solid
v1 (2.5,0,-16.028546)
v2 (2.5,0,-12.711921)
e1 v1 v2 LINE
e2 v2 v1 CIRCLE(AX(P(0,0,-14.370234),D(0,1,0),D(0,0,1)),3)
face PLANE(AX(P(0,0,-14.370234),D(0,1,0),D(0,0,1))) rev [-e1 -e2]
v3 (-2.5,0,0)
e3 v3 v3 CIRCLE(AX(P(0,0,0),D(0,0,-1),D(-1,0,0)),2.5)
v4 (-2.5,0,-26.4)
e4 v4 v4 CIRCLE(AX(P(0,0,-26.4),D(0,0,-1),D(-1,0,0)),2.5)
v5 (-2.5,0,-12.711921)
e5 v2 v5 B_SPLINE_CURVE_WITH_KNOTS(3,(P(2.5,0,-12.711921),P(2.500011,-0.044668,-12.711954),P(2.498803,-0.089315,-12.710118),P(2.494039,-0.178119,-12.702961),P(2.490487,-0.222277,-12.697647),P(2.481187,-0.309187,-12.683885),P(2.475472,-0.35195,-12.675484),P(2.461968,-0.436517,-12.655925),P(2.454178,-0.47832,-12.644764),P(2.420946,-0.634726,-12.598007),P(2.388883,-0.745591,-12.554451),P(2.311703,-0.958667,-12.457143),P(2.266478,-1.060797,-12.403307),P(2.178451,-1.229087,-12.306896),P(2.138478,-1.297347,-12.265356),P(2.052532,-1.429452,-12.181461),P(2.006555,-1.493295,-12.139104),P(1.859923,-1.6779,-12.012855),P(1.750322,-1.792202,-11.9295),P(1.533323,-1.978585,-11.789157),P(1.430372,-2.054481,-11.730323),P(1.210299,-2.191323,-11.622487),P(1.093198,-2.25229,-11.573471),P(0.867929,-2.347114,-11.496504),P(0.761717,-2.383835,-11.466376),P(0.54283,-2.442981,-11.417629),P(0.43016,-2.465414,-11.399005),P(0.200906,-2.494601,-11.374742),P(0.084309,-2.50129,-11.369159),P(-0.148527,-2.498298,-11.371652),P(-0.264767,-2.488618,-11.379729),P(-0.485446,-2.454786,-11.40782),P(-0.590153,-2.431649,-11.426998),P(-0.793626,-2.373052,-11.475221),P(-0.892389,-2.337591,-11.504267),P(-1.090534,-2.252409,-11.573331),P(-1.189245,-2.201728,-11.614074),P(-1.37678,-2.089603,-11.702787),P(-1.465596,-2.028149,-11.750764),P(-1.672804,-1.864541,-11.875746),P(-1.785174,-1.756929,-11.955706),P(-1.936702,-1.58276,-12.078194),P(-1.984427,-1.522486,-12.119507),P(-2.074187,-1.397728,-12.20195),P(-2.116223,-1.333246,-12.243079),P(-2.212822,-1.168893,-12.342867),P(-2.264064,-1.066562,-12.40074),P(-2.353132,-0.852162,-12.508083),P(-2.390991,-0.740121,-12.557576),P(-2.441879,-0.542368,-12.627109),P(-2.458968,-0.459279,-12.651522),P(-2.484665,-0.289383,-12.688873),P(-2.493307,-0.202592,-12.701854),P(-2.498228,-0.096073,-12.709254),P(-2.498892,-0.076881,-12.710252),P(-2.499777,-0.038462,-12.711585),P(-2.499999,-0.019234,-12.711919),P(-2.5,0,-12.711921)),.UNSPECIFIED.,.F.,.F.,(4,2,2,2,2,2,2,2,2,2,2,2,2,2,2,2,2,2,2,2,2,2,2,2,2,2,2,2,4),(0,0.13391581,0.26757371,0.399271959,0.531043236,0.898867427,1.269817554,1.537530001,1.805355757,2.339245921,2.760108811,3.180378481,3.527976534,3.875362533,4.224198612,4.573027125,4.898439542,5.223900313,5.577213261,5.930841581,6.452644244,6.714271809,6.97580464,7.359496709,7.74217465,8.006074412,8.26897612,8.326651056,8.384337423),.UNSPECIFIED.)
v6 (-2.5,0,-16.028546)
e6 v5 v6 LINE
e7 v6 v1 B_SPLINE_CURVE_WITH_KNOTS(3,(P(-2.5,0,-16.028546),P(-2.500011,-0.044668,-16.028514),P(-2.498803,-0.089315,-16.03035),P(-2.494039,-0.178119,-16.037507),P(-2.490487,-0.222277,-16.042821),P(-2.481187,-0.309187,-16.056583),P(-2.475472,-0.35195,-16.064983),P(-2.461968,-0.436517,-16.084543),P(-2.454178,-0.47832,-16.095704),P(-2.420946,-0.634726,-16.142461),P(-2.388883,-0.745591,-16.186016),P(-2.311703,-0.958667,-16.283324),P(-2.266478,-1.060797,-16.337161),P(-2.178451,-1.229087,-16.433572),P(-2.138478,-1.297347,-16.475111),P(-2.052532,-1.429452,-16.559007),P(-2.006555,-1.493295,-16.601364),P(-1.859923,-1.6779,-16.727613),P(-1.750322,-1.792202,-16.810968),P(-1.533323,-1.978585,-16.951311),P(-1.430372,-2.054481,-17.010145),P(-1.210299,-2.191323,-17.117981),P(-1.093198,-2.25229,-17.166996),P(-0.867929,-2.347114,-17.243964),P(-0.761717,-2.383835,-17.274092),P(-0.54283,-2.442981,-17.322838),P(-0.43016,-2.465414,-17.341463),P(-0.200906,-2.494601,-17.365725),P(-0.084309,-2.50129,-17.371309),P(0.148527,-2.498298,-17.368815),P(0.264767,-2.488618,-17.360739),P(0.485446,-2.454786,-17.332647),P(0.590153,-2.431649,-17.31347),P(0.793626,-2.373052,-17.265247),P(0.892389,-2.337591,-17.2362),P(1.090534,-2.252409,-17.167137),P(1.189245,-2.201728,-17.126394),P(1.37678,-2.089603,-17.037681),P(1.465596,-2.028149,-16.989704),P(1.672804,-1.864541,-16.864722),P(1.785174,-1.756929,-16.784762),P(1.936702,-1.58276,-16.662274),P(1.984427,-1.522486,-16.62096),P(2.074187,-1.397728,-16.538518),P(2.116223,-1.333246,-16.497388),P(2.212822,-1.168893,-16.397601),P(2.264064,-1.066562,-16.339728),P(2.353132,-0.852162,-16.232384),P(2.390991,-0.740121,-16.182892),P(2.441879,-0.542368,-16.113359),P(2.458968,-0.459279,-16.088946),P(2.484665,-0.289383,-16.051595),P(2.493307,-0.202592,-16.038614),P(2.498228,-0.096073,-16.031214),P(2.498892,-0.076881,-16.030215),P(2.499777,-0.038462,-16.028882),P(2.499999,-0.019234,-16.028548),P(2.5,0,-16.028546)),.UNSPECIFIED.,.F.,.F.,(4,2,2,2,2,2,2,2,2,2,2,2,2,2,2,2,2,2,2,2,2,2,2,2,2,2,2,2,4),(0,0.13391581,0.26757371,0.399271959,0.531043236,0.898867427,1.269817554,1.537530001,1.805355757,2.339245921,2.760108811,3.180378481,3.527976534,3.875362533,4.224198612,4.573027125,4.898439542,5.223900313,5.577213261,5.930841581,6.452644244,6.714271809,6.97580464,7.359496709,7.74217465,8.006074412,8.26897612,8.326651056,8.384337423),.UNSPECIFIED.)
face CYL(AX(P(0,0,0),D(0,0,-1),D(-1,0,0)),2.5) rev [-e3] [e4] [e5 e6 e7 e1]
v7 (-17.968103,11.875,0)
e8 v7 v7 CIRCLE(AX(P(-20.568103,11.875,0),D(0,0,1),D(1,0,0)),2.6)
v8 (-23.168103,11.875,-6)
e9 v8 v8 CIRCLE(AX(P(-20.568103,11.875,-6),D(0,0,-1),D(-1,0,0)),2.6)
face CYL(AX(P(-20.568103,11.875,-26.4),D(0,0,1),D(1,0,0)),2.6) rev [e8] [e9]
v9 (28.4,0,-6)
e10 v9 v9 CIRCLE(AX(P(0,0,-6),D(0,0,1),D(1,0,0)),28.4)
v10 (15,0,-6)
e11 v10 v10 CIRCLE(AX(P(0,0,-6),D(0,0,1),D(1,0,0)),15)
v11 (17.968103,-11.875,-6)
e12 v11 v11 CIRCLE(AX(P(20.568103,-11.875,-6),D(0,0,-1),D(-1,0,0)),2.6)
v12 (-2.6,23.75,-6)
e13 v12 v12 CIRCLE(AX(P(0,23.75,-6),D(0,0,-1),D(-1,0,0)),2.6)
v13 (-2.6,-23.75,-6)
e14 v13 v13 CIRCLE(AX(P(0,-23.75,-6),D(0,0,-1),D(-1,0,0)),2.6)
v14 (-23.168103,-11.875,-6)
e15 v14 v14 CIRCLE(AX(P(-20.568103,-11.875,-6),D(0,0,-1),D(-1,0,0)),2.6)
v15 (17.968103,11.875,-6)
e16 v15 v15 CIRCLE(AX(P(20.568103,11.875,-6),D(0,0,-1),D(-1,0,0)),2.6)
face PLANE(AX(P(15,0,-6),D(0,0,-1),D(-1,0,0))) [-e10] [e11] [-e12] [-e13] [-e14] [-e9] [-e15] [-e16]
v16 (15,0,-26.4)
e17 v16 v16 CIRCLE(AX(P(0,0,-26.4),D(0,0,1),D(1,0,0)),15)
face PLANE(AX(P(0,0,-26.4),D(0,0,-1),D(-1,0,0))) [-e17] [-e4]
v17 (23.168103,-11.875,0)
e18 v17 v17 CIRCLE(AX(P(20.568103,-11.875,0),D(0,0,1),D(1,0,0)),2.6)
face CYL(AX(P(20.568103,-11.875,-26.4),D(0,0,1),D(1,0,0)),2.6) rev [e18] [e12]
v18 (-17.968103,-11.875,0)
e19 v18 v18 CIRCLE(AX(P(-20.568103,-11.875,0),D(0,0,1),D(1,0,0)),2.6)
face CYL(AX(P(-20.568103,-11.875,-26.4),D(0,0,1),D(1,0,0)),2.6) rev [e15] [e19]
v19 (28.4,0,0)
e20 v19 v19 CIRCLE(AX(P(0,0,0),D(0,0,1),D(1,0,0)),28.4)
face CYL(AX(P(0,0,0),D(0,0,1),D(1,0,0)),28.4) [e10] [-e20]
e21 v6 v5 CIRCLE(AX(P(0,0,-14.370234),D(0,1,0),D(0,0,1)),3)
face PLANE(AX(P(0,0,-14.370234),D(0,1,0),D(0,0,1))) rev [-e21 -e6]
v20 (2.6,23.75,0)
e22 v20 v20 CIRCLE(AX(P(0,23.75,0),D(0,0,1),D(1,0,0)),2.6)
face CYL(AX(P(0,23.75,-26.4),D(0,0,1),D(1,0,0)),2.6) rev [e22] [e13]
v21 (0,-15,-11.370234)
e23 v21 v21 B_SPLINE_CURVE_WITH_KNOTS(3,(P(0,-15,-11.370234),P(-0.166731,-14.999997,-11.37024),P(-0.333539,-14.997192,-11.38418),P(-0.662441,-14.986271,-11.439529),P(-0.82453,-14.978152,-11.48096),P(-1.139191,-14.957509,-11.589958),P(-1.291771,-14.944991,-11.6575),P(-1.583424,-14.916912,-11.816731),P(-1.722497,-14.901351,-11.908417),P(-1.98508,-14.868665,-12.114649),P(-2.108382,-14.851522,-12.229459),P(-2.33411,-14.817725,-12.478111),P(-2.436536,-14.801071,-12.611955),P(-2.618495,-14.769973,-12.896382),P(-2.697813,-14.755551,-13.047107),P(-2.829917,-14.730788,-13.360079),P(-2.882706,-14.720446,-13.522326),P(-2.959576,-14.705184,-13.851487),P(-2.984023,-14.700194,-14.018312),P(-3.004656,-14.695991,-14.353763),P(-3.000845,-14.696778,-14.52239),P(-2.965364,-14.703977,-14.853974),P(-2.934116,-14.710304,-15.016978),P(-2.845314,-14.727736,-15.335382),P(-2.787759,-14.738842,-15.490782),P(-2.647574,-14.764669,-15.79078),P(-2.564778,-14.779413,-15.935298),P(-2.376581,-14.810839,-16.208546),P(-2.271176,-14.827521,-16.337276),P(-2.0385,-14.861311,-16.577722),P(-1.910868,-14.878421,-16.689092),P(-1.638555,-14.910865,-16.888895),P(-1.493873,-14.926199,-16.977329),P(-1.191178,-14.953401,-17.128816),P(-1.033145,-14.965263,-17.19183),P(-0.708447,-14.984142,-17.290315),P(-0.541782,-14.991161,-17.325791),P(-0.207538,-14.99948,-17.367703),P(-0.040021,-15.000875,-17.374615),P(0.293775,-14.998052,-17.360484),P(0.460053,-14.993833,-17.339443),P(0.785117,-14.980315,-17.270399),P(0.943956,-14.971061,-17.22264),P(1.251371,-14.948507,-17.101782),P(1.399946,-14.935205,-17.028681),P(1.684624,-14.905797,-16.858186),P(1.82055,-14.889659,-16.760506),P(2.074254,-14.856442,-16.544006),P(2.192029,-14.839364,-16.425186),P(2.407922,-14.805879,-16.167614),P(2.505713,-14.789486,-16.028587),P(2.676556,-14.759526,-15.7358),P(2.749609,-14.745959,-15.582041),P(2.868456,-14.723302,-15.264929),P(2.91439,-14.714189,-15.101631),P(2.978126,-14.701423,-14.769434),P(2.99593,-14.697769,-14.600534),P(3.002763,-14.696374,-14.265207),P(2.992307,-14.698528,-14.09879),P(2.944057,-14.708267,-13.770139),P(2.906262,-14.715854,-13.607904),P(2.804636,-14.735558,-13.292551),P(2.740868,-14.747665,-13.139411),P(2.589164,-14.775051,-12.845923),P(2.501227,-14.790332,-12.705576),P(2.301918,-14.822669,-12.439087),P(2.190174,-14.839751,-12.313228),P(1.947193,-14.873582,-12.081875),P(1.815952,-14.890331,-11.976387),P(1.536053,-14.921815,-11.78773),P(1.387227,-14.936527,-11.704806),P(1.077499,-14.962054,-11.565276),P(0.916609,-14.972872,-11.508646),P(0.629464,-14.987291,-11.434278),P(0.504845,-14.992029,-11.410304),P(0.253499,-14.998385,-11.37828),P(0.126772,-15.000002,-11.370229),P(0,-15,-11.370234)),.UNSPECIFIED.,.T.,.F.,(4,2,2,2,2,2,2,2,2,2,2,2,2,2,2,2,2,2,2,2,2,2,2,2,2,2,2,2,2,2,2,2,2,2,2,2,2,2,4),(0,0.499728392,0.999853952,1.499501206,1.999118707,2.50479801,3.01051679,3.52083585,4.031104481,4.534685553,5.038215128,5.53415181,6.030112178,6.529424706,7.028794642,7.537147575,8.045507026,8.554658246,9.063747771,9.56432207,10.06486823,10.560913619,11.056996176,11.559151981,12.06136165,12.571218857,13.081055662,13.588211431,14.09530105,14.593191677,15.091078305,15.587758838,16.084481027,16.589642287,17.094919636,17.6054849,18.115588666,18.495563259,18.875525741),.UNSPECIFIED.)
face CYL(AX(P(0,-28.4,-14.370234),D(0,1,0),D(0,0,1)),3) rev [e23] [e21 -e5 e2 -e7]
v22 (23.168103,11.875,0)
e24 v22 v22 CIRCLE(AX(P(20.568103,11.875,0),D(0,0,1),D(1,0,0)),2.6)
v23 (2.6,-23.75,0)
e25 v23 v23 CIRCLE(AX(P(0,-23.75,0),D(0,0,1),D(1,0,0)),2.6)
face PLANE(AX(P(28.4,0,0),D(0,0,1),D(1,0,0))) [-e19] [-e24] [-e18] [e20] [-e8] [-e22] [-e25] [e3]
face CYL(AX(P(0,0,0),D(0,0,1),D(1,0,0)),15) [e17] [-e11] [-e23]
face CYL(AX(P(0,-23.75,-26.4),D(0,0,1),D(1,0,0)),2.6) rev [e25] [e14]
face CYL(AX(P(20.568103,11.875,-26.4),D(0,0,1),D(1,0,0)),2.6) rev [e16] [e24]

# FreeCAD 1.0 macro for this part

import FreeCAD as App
import Part
import Sketcher

V = App.Vector
Q = App.Units.Quantity


def add_polygon(sketch, points):
    """Adds a closed chain of lines whose ends are joined by coincident constraints."""
    first, n = sketch.GeometryCount, len(points)
    for a, b in zip(points, points[1:] + points[:1]):
        sketch.addGeometry(Part.LineSegment(App.Vector(*a, 0), App.Vector(*b, 0)), False)
    for i in range(n):
        sketch.addConstraint(Sketcher.Constraint("Coincident", first + i, 2, first + (i + 1) % n, 1))

doc = App.newDocument("Part")
body = doc.addObject("PartDesign::Body", "Body")

sketch1 = body.newObject("Sketcher::SketchObject", "Sketch")
sketch1.AttachmentSupport = (doc.getObject("XZ_Plane"), [""])
sketch1.MapMode = "FlatFace"
add_polygon(sketch1, [(0, -26), (0, 0), (28, 0), (28, -6), (15, -6), (15, -26)])
sketch1.addConstraint([
    Sketcher.Constraint("Vertical", 0),
    Sketcher.Constraint("Horizontal", 1),
    Sketcher.Constraint("Vertical", 2),
    Sketcher.Constraint("Horizontal", 3),
    Sketcher.Constraint("Vertical", 4),
    Sketcher.Constraint("Horizontal", 5),
    Sketcher.Constraint("Coincident", 0, 2, -1, 1),
    Sketcher.Constraint("DistanceX", 5, 2, 5, 1, Q("15 mm")),
    Sketcher.Constraint("DistanceY", 2, 2, 2, 1, Q("6 mm")),
    Sketcher.Constraint("DistanceX", 1, 1, 1, 2, Q("28.4 mm")),
    Sketcher.Constraint("DistanceY", 0, 1, 0, 2, Q("26.4 mm")),
])
revolution = body.newObject("PartDesign::Revolution", "Revolution")
revolution.Profile = sketch1
revolution.ReferenceAxis = (sketch1, ["V_Axis"])
revolution.Angle = 360

sketch2 = body.newObject("Sketcher::SketchObject", "Sketch001")
sketch2.AttachmentSupport = (doc.getObject("XY_Plane"), [""])
sketch2.MapMode = "FlatFace"
sketch2.AttachmentOffset = App.Placement(V(0, 0, -26.4), App.Rotation())
sketch2.addGeometry(Part.Circle(V(0, 0, 0), V(0, 0, 1), 2.5), False)
sketch2.addConstraint([
    Sketcher.Constraint("Coincident", 0, 3, -1, 1),
    Sketcher.Constraint("Diameter", 0, Q("5 mm")),
])
pocket1 = body.newObject("PartDesign::Pocket", "Pocket")
pocket1.Profile = sketch2
pocket1.Type = "ThroughAll"
pocket1.Reversed = True

sketch3 = body.newObject("Sketcher::SketchObject", "Sketch002")
sketch3.AttachmentSupport = (doc.getObject("XZ_Plane"), [""])
sketch3.MapMode = "FlatFace"
sketch3.addGeometry(Part.Circle(V(0, -14.4, 0), V(0, 0, 1), 3), False)
sketch3.addConstraint([
    Sketcher.Constraint("PointOnObject", 0, 3, -2),
    Sketcher.Constraint("Diameter", 0, Q("6 mm")),
    Sketcher.Constraint("DistanceY", 0, 3, -1, 1, Q("14.370234 mm")),
])
pocket2 = body.newObject("PartDesign::Pocket", "Pocket001")
pocket2.Profile = sketch3
pocket2.Type = "ThroughAll"
pocket2.Reversed = True

sketch4 = body.newObject("Sketcher::SketchObject", "Sketch003")
sketch4.AttachmentSupport = (doc.getObject("XY_Plane"), [""])
sketch4.MapMode = "FlatFace"
sketch4.addGeometry([
    Part.Circle(V(0, 23.8, 0), V(0, 0, 1), 2.6),
    Part.Circle(V(20.6, 11.9, 0), V(0, 0, 1), 2.6),
    Part.Circle(V(20.6, -11.9, 0), V(0, 0, 1), 2.6),
    Part.Circle(V(0, -23.8, 0), V(0, 0, 1), 2.6),
    Part.Circle(V(-20.6, -11.9, 0), V(0, 0, 1), 2.6),
    Part.Circle(V(-20.6, 11.9, 0), V(0, 0, 1), 2.6),
], False)
sketch4.addConstraint([
    Sketcher.Constraint("Equal", 0, 1),
    Sketcher.Constraint("Equal", 1, 2),
    Sketcher.Constraint("Equal", 2, 3),
    Sketcher.Constraint("Equal", 3, 4),
    Sketcher.Constraint("Equal", 4, 5),
    Sketcher.Constraint("Symmetric", 0, 3, 3, 3, -1, 1),
    Sketcher.Constraint("Symmetric", 1, 3, 4, 3, -1, 1),
    Sketcher.Constraint("Symmetric", 2, 3, 5, 3, -1, 1),
    Sketcher.Constraint("Symmetric", 2, 3, 4, 3, -2),
    Sketcher.Constraint("PointOnObject", 0, 3, -2),
    Sketcher.Constraint("Diameter", 0, Q("5.2 mm")),
    Sketcher.Constraint("DistanceY", 3, 3, 0, 3, Q("47.5 mm")),
    Sketcher.Constraint("DistanceY", 2, 3, 1, 3, Q("23.75 mm")),
    Sketcher.Constraint("DistanceX", -1, 1, 1, 3, Q("20.568103 mm")),
])
pocket3 = body.newObject("PartDesign::Pocket", "Pocket002")
pocket3.Profile = sketch4
pocket3.Type = "ThroughAll"

doc.recompute()
